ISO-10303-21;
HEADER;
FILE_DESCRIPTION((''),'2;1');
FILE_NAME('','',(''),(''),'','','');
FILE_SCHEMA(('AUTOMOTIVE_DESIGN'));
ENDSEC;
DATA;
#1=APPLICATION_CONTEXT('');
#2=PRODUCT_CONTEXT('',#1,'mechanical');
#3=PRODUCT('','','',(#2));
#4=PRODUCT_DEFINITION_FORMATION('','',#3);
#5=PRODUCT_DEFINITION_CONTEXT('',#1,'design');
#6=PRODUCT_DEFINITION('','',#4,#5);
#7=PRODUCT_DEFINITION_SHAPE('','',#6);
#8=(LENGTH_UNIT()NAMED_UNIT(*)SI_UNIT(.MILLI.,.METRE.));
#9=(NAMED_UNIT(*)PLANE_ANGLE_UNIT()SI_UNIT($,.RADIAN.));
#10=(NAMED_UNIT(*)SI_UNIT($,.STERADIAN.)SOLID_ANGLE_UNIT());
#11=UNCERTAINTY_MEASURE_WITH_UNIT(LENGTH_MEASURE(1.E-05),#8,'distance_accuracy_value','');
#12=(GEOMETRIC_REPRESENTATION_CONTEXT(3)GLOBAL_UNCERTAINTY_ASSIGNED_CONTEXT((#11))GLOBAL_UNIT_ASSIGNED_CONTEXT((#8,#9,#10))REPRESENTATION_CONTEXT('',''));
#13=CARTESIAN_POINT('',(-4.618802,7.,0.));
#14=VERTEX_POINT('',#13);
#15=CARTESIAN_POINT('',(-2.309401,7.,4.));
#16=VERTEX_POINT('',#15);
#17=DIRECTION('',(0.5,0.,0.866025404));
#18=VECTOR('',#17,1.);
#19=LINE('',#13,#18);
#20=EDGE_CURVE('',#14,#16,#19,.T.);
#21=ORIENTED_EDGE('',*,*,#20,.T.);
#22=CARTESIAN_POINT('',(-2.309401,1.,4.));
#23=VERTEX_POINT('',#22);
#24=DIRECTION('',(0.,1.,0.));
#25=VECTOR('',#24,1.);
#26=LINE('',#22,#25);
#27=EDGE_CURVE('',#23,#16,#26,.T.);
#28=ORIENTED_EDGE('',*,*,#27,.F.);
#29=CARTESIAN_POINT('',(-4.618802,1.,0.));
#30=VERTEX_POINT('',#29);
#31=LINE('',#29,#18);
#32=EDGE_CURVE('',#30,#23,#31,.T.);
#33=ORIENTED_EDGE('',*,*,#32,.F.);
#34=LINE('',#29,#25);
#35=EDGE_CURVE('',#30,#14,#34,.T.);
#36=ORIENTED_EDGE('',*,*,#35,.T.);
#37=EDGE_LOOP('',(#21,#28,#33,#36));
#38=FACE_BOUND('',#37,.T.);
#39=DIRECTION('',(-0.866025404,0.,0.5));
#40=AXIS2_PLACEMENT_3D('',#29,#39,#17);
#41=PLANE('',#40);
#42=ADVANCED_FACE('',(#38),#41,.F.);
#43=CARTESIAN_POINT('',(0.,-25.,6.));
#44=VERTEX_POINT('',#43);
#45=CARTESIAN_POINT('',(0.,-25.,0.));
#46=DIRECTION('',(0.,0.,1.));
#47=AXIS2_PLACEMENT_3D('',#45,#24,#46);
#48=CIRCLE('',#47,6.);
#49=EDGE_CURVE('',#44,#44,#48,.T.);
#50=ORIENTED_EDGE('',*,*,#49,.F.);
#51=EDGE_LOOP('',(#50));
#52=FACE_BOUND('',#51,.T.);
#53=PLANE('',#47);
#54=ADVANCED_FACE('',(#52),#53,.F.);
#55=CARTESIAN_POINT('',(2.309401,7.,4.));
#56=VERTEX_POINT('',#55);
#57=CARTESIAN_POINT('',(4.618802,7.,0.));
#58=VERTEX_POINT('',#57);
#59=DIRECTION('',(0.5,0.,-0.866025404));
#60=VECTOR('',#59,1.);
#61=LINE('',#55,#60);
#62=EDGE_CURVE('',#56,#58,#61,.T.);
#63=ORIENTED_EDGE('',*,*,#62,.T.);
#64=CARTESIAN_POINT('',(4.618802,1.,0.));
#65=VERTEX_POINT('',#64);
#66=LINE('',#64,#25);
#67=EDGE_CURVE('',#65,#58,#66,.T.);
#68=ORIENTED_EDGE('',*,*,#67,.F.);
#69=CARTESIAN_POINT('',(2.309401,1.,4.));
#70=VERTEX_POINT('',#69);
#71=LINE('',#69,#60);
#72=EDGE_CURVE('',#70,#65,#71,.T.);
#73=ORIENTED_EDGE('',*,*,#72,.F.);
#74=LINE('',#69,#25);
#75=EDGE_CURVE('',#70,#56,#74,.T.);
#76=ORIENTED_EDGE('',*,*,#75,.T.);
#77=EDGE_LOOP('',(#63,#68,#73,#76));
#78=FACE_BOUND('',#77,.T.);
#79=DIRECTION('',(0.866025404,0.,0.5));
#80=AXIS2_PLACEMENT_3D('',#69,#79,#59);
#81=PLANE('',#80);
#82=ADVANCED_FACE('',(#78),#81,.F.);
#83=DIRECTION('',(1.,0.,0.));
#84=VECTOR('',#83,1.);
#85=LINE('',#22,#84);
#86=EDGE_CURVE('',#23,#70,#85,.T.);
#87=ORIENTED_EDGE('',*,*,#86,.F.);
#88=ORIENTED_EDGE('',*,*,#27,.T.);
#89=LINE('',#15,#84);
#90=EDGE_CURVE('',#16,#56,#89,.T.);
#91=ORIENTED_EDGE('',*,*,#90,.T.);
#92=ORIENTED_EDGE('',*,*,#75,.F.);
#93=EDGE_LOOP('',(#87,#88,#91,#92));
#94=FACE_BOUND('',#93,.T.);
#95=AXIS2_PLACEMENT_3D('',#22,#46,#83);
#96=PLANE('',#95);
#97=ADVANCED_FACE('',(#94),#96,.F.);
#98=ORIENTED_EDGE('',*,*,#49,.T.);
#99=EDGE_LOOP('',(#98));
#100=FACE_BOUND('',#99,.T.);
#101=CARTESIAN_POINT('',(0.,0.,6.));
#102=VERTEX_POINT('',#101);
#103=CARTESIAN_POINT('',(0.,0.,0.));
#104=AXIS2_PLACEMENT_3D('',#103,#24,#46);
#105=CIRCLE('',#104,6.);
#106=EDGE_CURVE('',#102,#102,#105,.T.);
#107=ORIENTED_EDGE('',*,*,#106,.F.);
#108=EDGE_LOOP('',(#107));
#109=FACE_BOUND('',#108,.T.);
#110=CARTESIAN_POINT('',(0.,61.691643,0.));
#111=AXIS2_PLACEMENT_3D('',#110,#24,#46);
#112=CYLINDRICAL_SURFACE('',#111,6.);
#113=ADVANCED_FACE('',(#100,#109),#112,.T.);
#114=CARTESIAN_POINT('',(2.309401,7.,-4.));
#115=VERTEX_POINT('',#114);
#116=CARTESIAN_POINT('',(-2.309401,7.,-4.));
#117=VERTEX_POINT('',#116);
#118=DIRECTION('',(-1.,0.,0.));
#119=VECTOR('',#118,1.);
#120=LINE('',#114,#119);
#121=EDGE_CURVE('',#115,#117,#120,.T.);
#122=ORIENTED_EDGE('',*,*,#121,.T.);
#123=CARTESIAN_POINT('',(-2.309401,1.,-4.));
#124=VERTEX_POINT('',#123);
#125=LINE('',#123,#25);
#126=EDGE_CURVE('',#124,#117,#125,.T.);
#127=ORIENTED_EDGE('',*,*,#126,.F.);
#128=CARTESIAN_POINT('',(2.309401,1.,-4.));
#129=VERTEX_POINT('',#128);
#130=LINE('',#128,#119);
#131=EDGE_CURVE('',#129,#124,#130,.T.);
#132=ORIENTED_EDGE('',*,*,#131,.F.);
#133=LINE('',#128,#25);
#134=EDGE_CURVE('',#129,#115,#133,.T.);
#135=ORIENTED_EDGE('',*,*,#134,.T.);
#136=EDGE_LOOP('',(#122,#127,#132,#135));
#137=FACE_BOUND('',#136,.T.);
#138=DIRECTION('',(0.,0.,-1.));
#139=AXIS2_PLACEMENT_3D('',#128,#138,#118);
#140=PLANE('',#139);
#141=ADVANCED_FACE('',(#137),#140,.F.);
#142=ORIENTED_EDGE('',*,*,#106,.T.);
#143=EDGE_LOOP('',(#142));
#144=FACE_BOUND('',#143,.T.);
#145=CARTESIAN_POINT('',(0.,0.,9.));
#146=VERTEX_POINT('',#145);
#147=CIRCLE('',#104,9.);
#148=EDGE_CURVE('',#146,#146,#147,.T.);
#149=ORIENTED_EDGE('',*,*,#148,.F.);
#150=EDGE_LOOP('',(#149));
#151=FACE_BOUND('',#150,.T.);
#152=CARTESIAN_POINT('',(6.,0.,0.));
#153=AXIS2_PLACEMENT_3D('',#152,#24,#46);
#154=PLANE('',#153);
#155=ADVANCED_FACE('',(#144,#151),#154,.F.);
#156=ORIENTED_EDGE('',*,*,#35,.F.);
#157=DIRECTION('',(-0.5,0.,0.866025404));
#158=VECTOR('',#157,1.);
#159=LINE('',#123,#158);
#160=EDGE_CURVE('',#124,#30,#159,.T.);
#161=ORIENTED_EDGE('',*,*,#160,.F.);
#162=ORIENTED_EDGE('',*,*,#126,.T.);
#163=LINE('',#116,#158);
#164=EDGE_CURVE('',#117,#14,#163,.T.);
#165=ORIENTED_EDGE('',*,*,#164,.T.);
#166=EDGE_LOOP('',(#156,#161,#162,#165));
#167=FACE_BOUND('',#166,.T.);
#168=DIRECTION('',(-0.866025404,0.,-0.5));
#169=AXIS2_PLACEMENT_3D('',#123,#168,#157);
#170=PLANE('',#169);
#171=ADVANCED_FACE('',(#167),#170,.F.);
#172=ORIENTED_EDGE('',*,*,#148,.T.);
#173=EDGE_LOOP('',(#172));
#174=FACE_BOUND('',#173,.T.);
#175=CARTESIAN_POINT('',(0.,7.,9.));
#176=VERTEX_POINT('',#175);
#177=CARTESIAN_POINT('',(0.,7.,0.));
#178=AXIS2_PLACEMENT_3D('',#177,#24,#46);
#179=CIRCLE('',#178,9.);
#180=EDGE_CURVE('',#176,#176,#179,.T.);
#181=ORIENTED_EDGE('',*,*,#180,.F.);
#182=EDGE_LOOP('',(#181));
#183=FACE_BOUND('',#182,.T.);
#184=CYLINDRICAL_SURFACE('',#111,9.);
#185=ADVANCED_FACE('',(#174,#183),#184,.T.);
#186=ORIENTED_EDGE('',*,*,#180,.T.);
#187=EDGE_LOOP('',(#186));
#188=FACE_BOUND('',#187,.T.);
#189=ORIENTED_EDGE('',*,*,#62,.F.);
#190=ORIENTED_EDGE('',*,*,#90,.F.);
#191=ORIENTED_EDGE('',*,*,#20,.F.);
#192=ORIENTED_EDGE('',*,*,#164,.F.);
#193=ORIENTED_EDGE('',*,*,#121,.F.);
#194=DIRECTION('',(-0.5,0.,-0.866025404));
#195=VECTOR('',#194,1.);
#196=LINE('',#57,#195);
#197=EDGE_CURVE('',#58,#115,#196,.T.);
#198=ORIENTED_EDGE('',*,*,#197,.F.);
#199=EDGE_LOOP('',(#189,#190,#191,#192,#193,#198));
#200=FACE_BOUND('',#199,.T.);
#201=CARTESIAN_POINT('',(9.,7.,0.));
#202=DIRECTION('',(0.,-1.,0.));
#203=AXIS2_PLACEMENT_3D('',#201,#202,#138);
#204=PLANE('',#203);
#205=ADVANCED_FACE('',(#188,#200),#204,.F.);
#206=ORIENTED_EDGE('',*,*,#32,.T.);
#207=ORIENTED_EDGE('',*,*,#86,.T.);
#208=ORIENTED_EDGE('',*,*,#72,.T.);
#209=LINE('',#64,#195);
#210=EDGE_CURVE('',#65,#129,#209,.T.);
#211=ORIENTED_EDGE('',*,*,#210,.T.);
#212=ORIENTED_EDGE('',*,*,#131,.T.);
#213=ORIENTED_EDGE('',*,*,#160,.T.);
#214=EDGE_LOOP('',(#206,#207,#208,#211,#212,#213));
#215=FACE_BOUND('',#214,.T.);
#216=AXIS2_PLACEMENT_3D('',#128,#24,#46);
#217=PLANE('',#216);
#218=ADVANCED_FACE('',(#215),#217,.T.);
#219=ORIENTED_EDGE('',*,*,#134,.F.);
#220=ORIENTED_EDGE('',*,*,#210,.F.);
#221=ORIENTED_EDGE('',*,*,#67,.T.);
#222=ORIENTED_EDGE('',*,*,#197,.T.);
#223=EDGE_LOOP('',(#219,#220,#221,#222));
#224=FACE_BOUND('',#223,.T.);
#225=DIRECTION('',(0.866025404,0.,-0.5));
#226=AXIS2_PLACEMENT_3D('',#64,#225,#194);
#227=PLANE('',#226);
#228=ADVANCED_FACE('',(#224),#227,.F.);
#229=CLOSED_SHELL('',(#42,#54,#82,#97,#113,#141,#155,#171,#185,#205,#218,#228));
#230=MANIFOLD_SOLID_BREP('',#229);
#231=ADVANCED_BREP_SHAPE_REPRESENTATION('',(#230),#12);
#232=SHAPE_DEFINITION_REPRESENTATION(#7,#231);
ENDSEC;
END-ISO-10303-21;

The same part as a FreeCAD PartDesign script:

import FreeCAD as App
import Part
import Sketcher
from FreeCAD import Vector
Q = App.Units.Quantity

doc = App.newDocument("Part")
params = doc.addObject("Spreadsheet::Sheet", "Params")
for row, (alias, value) in enumerate([
    ("sketch1_width", "6 mm"),
    ("sketch1_width2", "3 mm"),
    ("sketch1_height", "25 mm"),
    ("sketch1_height2", "7 mm"),
    ("revolution_angle", "360 deg"),
    ("pocket1_length", "6 mm"),
], start=1):
    params.set(f"A{row}", alias)
    params.set(f"B{row}", "=" + value)
    params.setAlias(f"B{row}", alias)

body = doc.addObject("PartDesign::Body", "Body")

# Sketch on XY plane
sketch1 = doc.addObject("Sketcher::SketchObject", "Sketch")
body.addObject(sketch1)
sketch1.AttachmentSupport = (doc.XY_Plane, [""])
sketch1.MapMode = "FlatFace"
sketch1.addGeometry([
    Part.LineSegment(Vector(0, -25, 0), Vector(6, -25, 0)),  # 0
    Part.LineSegment(Vector(6, -25, 0), Vector(6, 0, 0)),  # 1
    Part.LineSegment(Vector(6, 0, 0), Vector(9, 0, 0)),  # 2
    Part.LineSegment(Vector(9, 0, 0), Vector(9, 7, 0)),  # 3
    Part.LineSegment(Vector(9, 7, 0), Vector(0, 7, 0)),  # 4
    Part.LineSegment(Vector(0, 7, 0), Vector(0, -25, 0)),  # 5
], False)
sketch1.addConstraint([
    Sketcher.Constraint("Coincident", 0, 2, 1, 1),
    Sketcher.Constraint("Coincident", 1, 2, 2, 1),
    Sketcher.Constraint("Coincident", 2, 2, 3, 1),
    Sketcher.Constraint("Coincident", 3, 2, 4, 1),
    Sketcher.Constraint("Coincident", 4, 2, 5, 1),
    Sketcher.Constraint("Coincident", 5, 2, 0, 1),
    Sketcher.Constraint("Horizontal", 0),
    Sketcher.Constraint("Vertical", 1),
    Sketcher.Constraint("Horizontal", 2),
    Sketcher.Constraint("Vertical", 3),
    Sketcher.Constraint("Horizontal", 4),
    Sketcher.Constraint("Vertical", 5),
    Sketcher.Constraint("PointOnObject", 1, 2, -1),
    Sketcher.Constraint("PointOnObject", 4, 2, -2),
    Sketcher.Constraint("DistanceX", 0, 1, 0, 2, Q("6 mm")),
    Sketcher.Constraint("DistanceX", 2, 1, 2, 2, Q("3 mm")),
    Sketcher.Constraint("DistanceY", 1, 1, 1, 2, Q("25 mm")),
    Sketcher.Constraint("DistanceY", 3, 1, 3, 2, Q("7 mm")),
])
sketch1.setExpression("Constraints[14]", "Params.sketch1_width")
sketch1.setExpression("Constraints[15]", "Params.sketch1_width2")
sketch1.setExpression("Constraints[16]", "Params.sketch1_height")
sketch1.setExpression("Constraints[17]", "Params.sketch1_height2")
revolution = doc.addObject("PartDesign::Revolution", "Revolution")
body.addObject(revolution)
revolution.Profile = sketch1
revolution.ReferenceAxis = (sketch1, ["V_Axis"])
revolution.setExpression("Angle", "Params.revolution_angle")

# Sketch on XZ plane
sketch2 = doc.addObject("Sketcher::SketchObject", "Sketch001")
body.addObject(sketch2)
sketch2.AttachmentSupport = (doc.XZ_Plane, [""])
sketch2.MapMode = "FlatFace"
sketch2.AttachmentOffset = App.Placement(Vector(0, 0, -7), App.Rotation())
sketch2.addGeometry([
    Part.LineSegment(Vector(2.3, -4, 0), Vector(-2.3, -4, 0)),  # 0
    Part.LineSegment(Vector(-2.3, -4, 0), Vector(-4.6, 0, 0)),  # 1
    Part.LineSegment(Vector(-4.6, 0, 0), Vector(-2.3, 4, 0)),  # 2
    Part.LineSegment(Vector(-2.3, 4, 0), Vector(2.3, 4, 0)),  # 3
    Part.LineSegment(Vector(2.3, 4, 0), Vector(4.6, 0, 0)),  # 4
    Part.LineSegment(Vector(4.6, 0, 0), Vector(2.3, -4, 0)),  # 5
], False)
sketch2.addConstraint([
    Sketcher.Constraint("Coincident", 0, 2, 1, 1),
    Sketcher.Constraint("Coincident", 1, 2, 2, 1),
    Sketcher.Constraint("Coincident", 2, 2, 3, 1),
    Sketcher.Constraint("Coincident", 3, 2, 4, 1),
    Sketcher.Constraint("Coincident", 4, 2, 5, 1),
    Sketcher.Constraint("Coincident", 5, 2, 0, 1),
    Sketcher.Constraint("Horizontal", 0),
    Sketcher.Constraint("Horizontal", 3),
    Sketcher.Constraint("Symmetric", 0, 2, 3, 2, -1, 1),
    Sketcher.Constraint("Symmetric", 1, 2, 4, 2, -1, 1),
    Sketcher.Constraint("PointOnObject", 1, 2, -1),
    Sketcher.Constraint("Parallel", 2, 5),
    Sketcher.Constraint("Vertical", 0, 2, 2, 2),
    Sketcher.Constraint("Angle", 1, Q("120 deg")),
    Sketcher.Constraint("DistanceY", 0, 2, -1, 1, Q("4 mm")),
    Sketcher.Constraint("DistanceX", 0, 2, -1, 1, Q("2.309401 mm")),
])
pocket1 = doc.addObject("PartDesign::Pocket", "Pocket")
body.addObject(pocket1)
pocket1.Profile = sketch2
pocket1.setExpression("Length", "Params.pocket1_length")
pocket1.Reversed = True

doc.recompute()
